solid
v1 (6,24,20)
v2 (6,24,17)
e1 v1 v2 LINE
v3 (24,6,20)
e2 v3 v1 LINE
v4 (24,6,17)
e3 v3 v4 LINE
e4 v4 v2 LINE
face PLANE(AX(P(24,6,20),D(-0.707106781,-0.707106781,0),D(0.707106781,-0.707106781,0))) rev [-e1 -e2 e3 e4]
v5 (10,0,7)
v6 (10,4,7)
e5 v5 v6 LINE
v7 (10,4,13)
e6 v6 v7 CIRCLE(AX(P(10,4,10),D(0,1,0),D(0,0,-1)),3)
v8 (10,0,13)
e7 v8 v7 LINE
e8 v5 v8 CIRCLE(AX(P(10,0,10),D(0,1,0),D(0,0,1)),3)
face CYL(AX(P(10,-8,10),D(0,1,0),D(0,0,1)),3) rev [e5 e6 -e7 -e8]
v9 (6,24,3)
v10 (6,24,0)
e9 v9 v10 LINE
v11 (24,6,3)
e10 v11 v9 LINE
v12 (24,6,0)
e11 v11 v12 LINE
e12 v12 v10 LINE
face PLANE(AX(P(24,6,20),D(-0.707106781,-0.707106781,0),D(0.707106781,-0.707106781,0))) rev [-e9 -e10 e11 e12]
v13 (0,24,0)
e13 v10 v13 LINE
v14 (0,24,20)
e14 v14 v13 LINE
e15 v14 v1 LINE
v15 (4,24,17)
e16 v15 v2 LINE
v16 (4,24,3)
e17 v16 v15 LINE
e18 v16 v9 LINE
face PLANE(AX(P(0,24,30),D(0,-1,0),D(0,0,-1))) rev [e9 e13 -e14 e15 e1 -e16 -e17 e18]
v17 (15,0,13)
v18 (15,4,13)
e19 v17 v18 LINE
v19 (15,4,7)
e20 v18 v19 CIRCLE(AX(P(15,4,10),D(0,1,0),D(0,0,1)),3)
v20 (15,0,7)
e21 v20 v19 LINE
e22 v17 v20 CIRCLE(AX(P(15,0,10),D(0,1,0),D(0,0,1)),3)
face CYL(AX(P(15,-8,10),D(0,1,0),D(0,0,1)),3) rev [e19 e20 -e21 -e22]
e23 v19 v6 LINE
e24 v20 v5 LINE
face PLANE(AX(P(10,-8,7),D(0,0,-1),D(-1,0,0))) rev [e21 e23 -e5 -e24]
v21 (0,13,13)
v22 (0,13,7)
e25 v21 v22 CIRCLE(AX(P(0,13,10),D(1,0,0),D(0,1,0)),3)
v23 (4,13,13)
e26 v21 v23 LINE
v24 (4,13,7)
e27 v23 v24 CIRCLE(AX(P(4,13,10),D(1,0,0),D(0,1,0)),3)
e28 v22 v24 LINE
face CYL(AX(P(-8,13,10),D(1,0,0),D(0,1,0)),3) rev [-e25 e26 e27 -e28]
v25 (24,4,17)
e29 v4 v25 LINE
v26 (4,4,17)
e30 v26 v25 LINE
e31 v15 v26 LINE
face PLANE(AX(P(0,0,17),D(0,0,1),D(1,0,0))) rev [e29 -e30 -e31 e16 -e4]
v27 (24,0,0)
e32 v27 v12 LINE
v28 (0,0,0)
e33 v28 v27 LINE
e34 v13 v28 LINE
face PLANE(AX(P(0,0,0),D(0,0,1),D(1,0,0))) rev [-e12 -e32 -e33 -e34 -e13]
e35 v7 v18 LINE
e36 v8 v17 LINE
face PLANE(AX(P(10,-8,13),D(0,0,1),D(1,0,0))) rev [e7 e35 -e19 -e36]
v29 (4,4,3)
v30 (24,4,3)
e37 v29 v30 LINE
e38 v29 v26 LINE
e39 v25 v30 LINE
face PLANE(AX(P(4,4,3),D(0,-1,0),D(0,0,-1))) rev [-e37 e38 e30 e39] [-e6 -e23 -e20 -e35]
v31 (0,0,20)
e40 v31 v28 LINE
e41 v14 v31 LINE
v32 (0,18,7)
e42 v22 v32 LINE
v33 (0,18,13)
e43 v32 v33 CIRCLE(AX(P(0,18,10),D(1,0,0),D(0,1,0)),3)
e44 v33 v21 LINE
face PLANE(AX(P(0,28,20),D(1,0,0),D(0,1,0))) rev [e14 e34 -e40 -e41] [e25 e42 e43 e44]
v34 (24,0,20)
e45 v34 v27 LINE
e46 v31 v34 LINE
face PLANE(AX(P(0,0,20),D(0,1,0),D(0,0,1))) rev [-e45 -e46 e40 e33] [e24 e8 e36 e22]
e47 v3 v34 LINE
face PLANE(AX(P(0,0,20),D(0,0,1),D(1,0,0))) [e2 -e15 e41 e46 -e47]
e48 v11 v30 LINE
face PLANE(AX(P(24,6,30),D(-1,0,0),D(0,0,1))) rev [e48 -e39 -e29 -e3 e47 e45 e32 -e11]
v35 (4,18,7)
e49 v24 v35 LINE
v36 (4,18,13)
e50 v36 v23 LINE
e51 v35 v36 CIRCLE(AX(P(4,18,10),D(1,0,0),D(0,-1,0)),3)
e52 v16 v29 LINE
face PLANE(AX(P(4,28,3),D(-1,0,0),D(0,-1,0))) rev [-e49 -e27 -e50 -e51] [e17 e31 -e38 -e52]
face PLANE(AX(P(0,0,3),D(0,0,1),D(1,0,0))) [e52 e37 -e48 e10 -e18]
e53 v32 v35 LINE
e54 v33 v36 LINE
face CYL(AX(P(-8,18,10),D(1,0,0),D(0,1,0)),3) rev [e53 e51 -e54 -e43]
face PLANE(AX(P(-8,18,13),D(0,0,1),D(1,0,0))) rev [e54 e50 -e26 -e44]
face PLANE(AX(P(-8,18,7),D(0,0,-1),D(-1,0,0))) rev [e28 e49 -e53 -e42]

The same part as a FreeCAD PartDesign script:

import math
import FreeCAD as App
import Part
import Sketcher

V = App.Vector

doc = App.newDocument("Part")
body = doc.addObject("PartDesign::Body", "Body")

sketch1 = body.newObject("Sketcher::SketchObject", "Sketch")
sketch1.AttachmentSupport = (doc.getObject("XY_Plane"), [""])
sketch1.MapMode = "FlatFace"
sketch1.addGeometry([
    Part.LineSegment(V(0, 28, 0), V(0, 0, 0)),
    Part.LineSegment(V(0, 0, 0), V(28, 0, 0)),
    Part.LineSegment(V(28, 0, 0), V(28, 6, 0)),
    Part.LineSegment(V(28, 6, 0), V(24, 6, 0)),
    Part.LineSegment(V(24, 6, 0), V(6, 24, 0)),
    Part.LineSegment(V(6, 24, 0), V(6, 28, 0)),
    Part.LineSegment(V(6, 28, 0), V(0, 28, 0)),
], False)
sketch1.addConstraint([
    Sketcher.Constraint("Coincident", 0, 2, 1, 1),
    Sketcher.Constraint("Coincident", 1, 2, 2, 1),
    Sketcher.Constraint("Coincident", 2, 2, 3, 1),
    Sketcher.Constraint("Coincident", 3, 2, 4, 1),
    Sketcher.Constraint("Coincident", 4, 2, 5, 1),
    Sketcher.Constraint("Coincident", 5, 2, 6, 1),
    Sketcher.Constraint("Coincident", 6, 2, 0, 1),
    Sketcher.Constraint("Vertical", 0),
    Sketcher.Constraint("Horizontal", 1),
    Sketcher.Constraint("Vertical", 2),
    Sketcher.Constraint("Horizontal", 3),
    Sketcher.Constraint("Vertical", 5),
    Sketcher.Constraint("Horizontal", 6),
    Sketcher.Constraint("Coincident", 0, 2, -1, 1),
    Sketcher.Constraint("Equal", 1, 0),
    Sketcher.Constraint("Equal", 6, 2),
    Sketcher.Constraint("Equal", 3, 5),
    Sketcher.Constraint("DistanceX", 1, 1, 1, 2, 28.0),
    Sketcher.Constraint("DistanceX", 3, 2, 3, 1, 4.0),
    Sketcher.Constraint("DistanceX", 6, 2, 6, 1, 6.0),
])
pad1 = body.newObject("PartDesign::Pad", "Pad")
pad1.Profile = sketch1
pad1.Length = 20

sketch2 = body.newObject("Sketcher::SketchObject", "Sketch001")
sketch2.AttachmentSupport = (doc.getObject("XY_Plane"), [""])
sketch2.MapMode = "FlatFace"
sketch2.AttachmentOffset = App.Placement(V(0, 0, 17), App.Rotation())
sketch2.addGeometry([
    Part.LineSegment(V(4, 28, 0), V(4, 4, 0)),
    Part.LineSegment(V(4, 4, 0), V(28, 4, 0)),
    Part.LineSegment(V(28, 4, 0), V(28, 28, 0)),
    Part.LineSegment(V(28, 28, 0), V(4, 28, 0)),
], False)
sketch2.addConstraint([
    Sketcher.Constraint("Coincident", 0, 2, 1, 1),
    Sketcher.Constraint("Coincident", 1, 2, 2, 1),
    Sketcher.Constraint("Coincident", 2, 2, 3, 1),
    Sketcher.Constraint("Coincident", 3, 2, 0, 1),
    Sketcher.Constraint("Vertical", 0),
    Sketcher.Constraint("Horizontal", 1),
    Sketcher.Constraint("Vertical", 2),
    Sketcher.Constraint("Horizontal", 3),
    Sketcher.Constraint("Equal", 3, 0),
    Sketcher.Constraint("DistanceX", 1, 1, 1, 2, 24.0),
    Sketcher.Constraint("DistanceX", -1, 1, 0, 2, 4.0),
    Sketcher.Constraint("DistanceY", -1, 1, 0, 2, 4.0),
])
pocket1 = body.newObject("PartDesign::Pocket", "Pocket")
pocket1.Profile = sketch2
pocket1.Length = 14

sketch3 = body.newObject("Sketcher::SketchObject", "Sketch002")
sketch3.AttachmentSupport = (doc.getObject("XZ_Plane"), [""])
sketch3.MapMode = "FlatFace"
sketch3.AttachmentOffset = App.Placement(V(0, 0, -4), App.Rotation())
sketch3.addGeometry([
    Part.LineSegment(V(10, 13, 0), V(15, 13, 0)),
    Part.ArcOfCircle(Part.Circle(V(15, 10, 0), V(0, 0, 1), 3), math.radians(-90), math.radians(90)),
    Part.LineSegment(V(15, 7, 0), V(10, 7, 0)),
    Part.ArcOfCircle(Part.Circle(V(10, 10, 0), V(0, 0, 1), 3), math.radians(90), math.radians(270)),
], False)
sketch3.addConstraint([
    Sketcher.Constraint("Tangent", 0, 2, 1, 2),
    Sketcher.Constraint("Tangent", 1, 1, 2, 1),
    Sketcher.Constraint("Tangent", 2, 2, 3, 2),
    Sketcher.Constraint("Tangent", 3, 1, 0, 1),
    Sketcher.Constraint("Horizontal", 0),
    Sketcher.Constraint("Horizontal", 2),
    Sketcher.Constraint("Radius", 1, 3.0),
    Sketcher.Constraint("DistanceX", 0, 1, 0, 2, 5.0),
    Sketcher.Constraint("DistanceX", -1, 1, 1, 3, 15.0),
    Sketcher.Constraint("DistanceY", -1, 1, 1, 3, 10.0),
])
pocket2 = body.newObject("PartDesign::Pocket", "Pocket001")
pocket2.Profile = sketch3
pocket2.Length = 12
pocket2.Reversed = True

sketch4 = body.newObject("Sketcher::SketchObject", "Sketch003")
sketch4.AttachmentSupport = (doc.getObject("YZ_Plane"), [""])
sketch4.MapMode = "FlatFace"
sketch4.AttachmentOffset = App.Placement(V(0, 0, 4), App.Rotation())
sketch4.addGeometry([
    Part.LineSegment(V(18, 13, 0), V(13, 13, 0)),
    Part.ArcOfCircle(Part.Circle(V(13, 10, 0), V(0, 0, 1), 3), math.radians(90), math.radians(270)),
    Part.LineSegment(V(13, 7, 0), V(18, 7, 0)),
    Part.ArcOfCircle(Part.Circle(V(18, 10, 0), V(0, 0, 1), 3), math.radians(-90), math.radians(90)),
], False)
sketch4.addConstraint([
    Sketcher.Constraint("Tangent", 0, 2, 1, 1),
    Sketcher.Constraint("Tangent", 1, 2, 2, 1),
    Sketcher.Constraint("Tangent", 2, 2, 3, 1),
    Sketcher.Constraint("Tangent", 3, 2, 0, 1),
    Sketcher.Constraint("Horizontal", 0),
    Sketcher.Constraint("Horizontal", 2),
    Sketcher.Constraint("Radius", 1, 3.0),
    Sketcher.Constraint("DistanceX", 0, 2, 0, 1, 5.0),
    Sketcher.Constraint("DistanceX", -1, 1, 1, 3, 13.0),
    Sketcher.Constraint("DistanceY", -1, 1, 1, 3, 10.0),
])
pocket3 = body.newObject("PartDesign::Pocket", "Pocket002")
pocket3.Profile = sketch4
pocket3.Length = 12

sketch5 = body.newObject("Sketcher::SketchObject", "Sketch004")
sketch5.AttachmentSupport = (doc.getObject("XY_Plane"), [""])
sketch5.MapMode = "FlatFace"
sketch5.addGeometry([
    Part.LineSegment(V(6, 28, 0), V(6, 24, 0)),
    Part.LineSegment(V(6, 24, 0), V(0, 24, 0)),
    Part.LineSegment(V(0, 24, 0), V(0, 28, 0)),
    Part.LineSegment(V(0, 28, 0), V(6, 28, 0)),
    Part.LineSegment(V(28, 6, 0), V(28, 0, 0)),
    Part.LineSegment(V(28, 0, 0), V(24, 0, 0)),
    Part.LineSegment(V(24, 0, 0), V(24, 6, 0)),
    Part.LineSegment(V(24, 6, 0), V(28, 6, 0)),
], False)
sketch5.addConstraint([
    Sketcher.Constraint("Coincident", 0, 2, 1, 1),
    Sketcher.Constraint("Coincident", 1, 2, 2, 1),
    Sketcher.Constraint("Coincident", 2, 2, 3, 1),
    Sketcher.Constraint("Coincident", 3, 2, 0, 1),
    Sketcher.Constraint("Coincident", 4, 2, 5, 1),
    Sketcher.Constraint("Coincident", 5, 2, 6, 1),
    Sketcher.Constraint("Coincident", 6, 2, 7, 1),
    Sketcher.Constraint("Coincident", 7, 2, 4, 1),
    Sketcher.Constraint("Vertical", 0),
    Sketcher.Constraint("Horizontal", 1),
    Sketcher.Constraint("Vertical", 2),
    Sketcher.Constraint("Horizontal", 3),
    Sketcher.Constraint("Vertical", 4),
    Sketcher.Constraint("Horizontal", 5),
    Sketcher.Constraint("Vertical", 6),
    Sketcher.Constraint("Horizontal", 7),
    Sketcher.Constraint("PointOnObject", 1, 2, -2),
    Sketcher.Constraint("PointOnObject", 4, 2, -1),
    Sketcher.Constraint("Equal", 7, 0),
    Sketcher.Constraint("Equal", 3, 4),
    Sketcher.Constraint("DistanceX", 1, 2, 1, 1, 6.0),
    Sketcher.Constraint("DistanceX", 5, 2, 5, 1, 4.0),
    Sketcher.Constraint("DistanceY", -1, 1, 0, 2, 24.0),
    Sketcher.Constraint("DistanceX", -1, 1, 4, 2, 28.0),
])
pocket4 = body.newObject("PartDesign::Pocket", "Pocket003")
pocket4.Profile = sketch5
pocket4.Length = 30
pocket4.Reversed = True

doc.recompute()
